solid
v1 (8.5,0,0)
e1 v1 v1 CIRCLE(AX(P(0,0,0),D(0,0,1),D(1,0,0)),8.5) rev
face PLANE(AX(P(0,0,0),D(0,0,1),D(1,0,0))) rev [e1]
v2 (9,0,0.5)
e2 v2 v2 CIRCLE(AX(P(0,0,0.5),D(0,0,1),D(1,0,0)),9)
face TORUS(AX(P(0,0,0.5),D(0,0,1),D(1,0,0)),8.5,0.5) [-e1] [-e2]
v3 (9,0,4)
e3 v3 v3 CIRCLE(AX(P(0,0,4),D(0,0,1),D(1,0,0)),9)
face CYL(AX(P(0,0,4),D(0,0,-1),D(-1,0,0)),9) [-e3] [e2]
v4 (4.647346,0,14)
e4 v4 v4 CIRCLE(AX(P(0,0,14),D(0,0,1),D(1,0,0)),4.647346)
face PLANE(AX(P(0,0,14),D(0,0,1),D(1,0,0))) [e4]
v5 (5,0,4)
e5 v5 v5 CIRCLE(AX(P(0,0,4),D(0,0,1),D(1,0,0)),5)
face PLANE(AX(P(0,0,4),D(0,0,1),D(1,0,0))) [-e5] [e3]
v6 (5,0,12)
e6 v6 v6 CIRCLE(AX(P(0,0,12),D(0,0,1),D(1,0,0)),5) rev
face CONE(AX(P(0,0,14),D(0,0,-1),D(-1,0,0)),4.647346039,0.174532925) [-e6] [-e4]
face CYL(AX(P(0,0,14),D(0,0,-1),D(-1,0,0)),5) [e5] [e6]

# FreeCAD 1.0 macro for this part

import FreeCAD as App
import Part
import Sketcher
from FreeCAD import Vector


def edges_at(feature, points):
    """Names of the edges that pass closest to the given points."""
    edges = feature.Shape.Edges
    near = lambda p: min(range(len(edges)), key=lambda i: edges[i].distToShape(Part.Vertex(*p))[0])
    return sorted({f"Edge{near(p) + 1}" for p in points})

doc = App.newDocument("Part")
body = doc.addObject("PartDesign::Body", "Body")

# Sketch on XY plane
sketch1 = doc.addObject("Sketcher::SketchObject", "Sketch")
body.addObject(sketch1)
sketch1.AttachmentSupport = (doc.XY_Plane, [""])
sketch1.MapMode = "FlatFace"
sketch1.addGeometry(Part.Circle(Vector(0, 0, 0), Vector(0, 0, 1), 9), False)
sketch1.addConstraint([
    Sketcher.Constraint("Coincident", 0, 3, -1, 1),
    Sketcher.Constraint("Diameter", 0, 18.0),
])
pad1 = doc.addObject("PartDesign::Pad", "Pad")
body.addObject(pad1)
pad1.Profile = sketch1
pad1.Length = 4

# Sketch on XY plane
sketch2 = doc.addObject("Sketcher::SketchObject", "Sketch001")
body.addObject(sketch2)
sketch2.AttachmentSupport = (doc.XY_Plane, [""])
sketch2.MapMode = "FlatFace"
sketch2.AttachmentOffset = App.Placement(Vector(0, 0, 4), App.Rotation())
sketch2.addGeometry(Part.Circle(Vector(0, 0, 0), Vector(0, 0, 1), 5), False)
sketch2.addConstraint([
    Sketcher.Constraint("Coincident", 0, 3, -1, 1),
    Sketcher.Constraint("Diameter", 0, 10.0),
])
pad2 = doc.addObject("PartDesign::Pad", "Pad001")
body.addObject(pad2)
pad2.Profile = sketch2
pad2.Length = 10
doc.recompute()

fillet = doc.addObject("PartDesign::Fillet", "Fillet")
body.addObject(fillet)
fillet.Base = (pad2, edges_at(pad2, [(-9, 0, 0)]))
fillet.Radius = 0.5
doc.recompute()

chamfer = doc.addObject("PartDesign::Chamfer", "Chamfer")
body.addObject(chamfer)
chamfer.Base = (fillet, edges_at(fillet, [(-5, 0, 14)]))
chamfer.ChamferType = "Two distances"
chamfer.Size = 2
chamfer.Size2 = 0.352654

doc.recompute()
